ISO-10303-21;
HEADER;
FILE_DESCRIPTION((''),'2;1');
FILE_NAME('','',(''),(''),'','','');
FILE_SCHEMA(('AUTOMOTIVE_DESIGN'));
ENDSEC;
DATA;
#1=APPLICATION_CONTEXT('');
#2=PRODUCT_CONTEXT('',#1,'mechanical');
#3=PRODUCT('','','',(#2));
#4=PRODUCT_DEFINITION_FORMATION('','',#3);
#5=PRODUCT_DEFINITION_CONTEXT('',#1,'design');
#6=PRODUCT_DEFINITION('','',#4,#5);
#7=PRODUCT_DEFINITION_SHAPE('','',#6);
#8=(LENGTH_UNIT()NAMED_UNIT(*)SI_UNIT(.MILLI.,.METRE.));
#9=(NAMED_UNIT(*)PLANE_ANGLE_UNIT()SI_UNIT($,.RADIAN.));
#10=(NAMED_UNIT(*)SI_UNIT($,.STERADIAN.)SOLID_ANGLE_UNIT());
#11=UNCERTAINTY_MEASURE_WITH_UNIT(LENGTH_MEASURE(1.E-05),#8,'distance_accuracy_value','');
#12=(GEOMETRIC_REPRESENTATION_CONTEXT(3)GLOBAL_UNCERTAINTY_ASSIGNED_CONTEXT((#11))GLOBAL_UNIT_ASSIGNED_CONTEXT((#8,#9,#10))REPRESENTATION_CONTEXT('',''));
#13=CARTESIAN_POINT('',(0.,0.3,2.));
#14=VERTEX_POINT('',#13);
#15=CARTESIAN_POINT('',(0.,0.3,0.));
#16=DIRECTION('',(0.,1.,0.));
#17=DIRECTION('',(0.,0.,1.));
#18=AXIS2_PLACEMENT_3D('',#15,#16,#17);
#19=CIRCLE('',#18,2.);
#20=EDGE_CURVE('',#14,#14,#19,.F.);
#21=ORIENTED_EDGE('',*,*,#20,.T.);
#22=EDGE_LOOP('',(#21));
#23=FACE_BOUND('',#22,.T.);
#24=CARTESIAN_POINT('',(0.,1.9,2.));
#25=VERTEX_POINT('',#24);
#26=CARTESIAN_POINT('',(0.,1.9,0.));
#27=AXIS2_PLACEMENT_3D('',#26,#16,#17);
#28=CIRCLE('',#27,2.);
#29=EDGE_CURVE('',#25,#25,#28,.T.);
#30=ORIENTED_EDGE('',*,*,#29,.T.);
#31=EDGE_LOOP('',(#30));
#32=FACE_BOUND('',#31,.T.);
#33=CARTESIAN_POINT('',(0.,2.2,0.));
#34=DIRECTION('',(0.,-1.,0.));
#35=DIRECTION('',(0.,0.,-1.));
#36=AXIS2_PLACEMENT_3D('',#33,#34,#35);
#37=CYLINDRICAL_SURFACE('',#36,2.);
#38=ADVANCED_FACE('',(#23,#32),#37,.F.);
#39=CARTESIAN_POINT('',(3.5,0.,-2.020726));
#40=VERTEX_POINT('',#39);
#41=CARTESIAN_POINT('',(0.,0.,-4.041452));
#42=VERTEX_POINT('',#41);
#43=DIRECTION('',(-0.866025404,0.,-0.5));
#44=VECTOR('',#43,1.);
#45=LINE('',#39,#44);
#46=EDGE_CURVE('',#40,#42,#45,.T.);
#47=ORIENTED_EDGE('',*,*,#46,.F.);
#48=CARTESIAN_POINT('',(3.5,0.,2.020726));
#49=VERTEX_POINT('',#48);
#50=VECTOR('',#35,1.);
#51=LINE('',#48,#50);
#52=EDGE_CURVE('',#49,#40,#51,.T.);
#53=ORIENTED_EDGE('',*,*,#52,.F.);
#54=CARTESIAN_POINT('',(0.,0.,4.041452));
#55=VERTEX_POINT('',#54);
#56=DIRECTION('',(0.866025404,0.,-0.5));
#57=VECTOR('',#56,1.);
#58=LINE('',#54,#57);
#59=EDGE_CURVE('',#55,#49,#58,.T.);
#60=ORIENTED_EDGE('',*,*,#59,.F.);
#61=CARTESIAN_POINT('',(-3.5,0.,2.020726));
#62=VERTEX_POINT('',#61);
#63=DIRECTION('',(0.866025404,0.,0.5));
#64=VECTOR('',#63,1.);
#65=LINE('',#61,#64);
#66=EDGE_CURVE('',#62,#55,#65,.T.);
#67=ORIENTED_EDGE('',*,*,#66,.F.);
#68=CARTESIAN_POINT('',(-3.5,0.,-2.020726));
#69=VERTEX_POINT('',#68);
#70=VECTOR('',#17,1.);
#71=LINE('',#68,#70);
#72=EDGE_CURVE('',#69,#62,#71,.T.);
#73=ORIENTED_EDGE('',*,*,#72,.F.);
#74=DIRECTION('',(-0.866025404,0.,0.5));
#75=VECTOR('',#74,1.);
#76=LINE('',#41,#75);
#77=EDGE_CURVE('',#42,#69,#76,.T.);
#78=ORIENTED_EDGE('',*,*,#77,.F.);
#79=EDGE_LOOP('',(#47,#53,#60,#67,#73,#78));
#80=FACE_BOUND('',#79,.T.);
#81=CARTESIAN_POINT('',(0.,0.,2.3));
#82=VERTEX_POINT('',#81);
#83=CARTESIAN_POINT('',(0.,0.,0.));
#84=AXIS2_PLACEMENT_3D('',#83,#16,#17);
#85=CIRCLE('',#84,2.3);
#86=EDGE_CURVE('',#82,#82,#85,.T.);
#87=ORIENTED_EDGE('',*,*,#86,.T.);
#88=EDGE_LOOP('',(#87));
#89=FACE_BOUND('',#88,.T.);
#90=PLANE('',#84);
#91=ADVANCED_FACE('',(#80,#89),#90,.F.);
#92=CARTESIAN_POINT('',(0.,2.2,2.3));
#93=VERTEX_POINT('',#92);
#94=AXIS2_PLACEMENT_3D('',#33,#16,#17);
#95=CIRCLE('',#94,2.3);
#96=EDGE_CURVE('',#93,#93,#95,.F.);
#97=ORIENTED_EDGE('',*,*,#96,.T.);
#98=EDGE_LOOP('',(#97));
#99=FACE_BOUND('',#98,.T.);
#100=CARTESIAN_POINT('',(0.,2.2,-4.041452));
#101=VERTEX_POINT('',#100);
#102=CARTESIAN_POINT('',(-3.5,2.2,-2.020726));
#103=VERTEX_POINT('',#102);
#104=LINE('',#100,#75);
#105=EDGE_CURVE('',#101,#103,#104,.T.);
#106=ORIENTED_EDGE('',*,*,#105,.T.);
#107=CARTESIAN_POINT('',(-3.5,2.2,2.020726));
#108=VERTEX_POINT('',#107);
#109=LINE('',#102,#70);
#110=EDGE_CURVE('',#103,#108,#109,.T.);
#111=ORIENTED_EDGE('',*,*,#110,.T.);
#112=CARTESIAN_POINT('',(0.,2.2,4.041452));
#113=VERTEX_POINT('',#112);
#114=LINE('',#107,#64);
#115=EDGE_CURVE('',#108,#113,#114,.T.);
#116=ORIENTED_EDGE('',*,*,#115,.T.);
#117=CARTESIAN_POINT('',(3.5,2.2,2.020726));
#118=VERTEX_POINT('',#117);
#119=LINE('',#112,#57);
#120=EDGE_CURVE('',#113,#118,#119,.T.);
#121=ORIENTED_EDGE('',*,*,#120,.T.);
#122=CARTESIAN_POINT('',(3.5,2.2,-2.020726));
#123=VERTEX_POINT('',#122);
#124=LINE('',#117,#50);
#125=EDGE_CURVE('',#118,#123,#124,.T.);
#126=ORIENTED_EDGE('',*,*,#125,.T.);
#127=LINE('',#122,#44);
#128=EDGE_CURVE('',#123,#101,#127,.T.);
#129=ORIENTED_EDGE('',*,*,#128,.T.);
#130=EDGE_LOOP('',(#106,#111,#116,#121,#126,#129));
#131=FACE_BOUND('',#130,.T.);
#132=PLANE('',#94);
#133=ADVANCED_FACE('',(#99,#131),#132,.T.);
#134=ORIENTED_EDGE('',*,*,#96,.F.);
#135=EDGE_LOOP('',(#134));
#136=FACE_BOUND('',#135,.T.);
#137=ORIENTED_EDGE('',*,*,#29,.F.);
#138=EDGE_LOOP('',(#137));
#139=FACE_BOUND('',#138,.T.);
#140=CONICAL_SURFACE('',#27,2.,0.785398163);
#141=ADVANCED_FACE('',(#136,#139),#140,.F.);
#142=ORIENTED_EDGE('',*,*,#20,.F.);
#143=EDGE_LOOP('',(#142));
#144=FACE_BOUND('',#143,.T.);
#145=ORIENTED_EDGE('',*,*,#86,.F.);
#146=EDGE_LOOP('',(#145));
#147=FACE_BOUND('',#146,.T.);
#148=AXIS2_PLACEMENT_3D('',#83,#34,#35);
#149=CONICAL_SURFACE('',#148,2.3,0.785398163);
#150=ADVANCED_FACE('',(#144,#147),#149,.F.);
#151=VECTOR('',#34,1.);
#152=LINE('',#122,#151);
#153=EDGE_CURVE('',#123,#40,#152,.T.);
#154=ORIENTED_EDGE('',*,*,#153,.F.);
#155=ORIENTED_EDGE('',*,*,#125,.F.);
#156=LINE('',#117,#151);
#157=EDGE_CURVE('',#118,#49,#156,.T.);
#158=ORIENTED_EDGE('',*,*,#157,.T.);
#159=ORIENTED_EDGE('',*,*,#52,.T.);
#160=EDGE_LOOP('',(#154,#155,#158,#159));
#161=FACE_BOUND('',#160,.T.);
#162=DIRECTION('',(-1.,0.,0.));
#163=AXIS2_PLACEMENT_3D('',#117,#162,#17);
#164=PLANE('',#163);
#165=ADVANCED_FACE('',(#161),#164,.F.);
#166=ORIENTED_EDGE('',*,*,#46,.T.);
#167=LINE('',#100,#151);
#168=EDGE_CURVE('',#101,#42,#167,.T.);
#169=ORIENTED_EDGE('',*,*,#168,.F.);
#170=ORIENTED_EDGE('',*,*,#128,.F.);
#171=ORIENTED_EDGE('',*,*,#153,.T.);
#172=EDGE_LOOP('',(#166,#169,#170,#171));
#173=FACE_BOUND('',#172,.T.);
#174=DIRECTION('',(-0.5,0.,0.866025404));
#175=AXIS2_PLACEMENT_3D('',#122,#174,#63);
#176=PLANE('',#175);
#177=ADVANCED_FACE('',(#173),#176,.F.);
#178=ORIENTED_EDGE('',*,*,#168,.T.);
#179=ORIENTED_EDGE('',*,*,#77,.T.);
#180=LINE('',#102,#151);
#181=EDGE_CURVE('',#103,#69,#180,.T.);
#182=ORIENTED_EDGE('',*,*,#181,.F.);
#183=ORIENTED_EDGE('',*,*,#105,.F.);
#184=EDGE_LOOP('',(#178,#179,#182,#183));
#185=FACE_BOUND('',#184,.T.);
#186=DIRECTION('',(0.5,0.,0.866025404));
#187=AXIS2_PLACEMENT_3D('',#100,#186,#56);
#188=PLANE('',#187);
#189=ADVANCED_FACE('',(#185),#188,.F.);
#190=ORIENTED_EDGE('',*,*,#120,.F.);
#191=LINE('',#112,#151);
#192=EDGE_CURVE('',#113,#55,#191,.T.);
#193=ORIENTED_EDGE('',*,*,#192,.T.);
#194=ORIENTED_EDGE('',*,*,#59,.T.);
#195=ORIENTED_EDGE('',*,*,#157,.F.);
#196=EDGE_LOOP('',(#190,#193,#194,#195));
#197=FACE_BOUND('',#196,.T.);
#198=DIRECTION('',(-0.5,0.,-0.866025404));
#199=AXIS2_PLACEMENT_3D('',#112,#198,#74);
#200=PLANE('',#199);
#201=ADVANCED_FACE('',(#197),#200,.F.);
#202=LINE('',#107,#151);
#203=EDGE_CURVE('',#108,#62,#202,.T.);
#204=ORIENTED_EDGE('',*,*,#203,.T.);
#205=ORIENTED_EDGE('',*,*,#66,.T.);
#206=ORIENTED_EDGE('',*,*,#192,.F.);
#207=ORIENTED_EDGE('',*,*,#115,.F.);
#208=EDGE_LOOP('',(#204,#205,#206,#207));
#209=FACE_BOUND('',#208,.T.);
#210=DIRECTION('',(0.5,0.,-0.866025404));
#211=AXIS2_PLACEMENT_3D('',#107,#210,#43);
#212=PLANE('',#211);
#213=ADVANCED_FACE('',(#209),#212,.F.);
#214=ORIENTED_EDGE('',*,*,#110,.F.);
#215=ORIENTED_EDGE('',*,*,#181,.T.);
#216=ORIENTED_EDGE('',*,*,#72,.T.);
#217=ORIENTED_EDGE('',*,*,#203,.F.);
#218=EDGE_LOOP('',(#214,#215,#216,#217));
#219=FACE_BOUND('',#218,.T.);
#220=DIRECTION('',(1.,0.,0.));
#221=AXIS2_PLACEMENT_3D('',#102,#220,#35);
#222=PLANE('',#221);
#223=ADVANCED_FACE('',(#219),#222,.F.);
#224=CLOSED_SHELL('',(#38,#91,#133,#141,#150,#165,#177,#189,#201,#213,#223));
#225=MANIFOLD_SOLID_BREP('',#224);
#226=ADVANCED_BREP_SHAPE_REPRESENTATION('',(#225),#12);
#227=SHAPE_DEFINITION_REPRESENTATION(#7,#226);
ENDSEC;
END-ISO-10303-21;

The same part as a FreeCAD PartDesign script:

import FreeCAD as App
import Part
import Sketcher
from FreeCAD import Vector
Q = App.Units.Quantity


def edges_at(feature, points):
    """Names of the edges that pass closest to the given points."""
    edges = feature.Shape.Edges
    near = lambda p: min(range(len(edges)), key=lambda i: edges[i].distToShape(Part.Vertex(*p))[0])
    return sorted({f"Edge{near(p) + 1}" for p in points})

doc = App.newDocument("Part")
body = doc.addObject("PartDesign::Body", "Body")

# Sketch on XZ plane
sketch1 = body.newObject("Sketcher::SketchObject", "Sketch")
sketch1.AttachmentSupport = (doc.getObject("XZ_Plane"), [""])
sketch1.MapMode = "FlatFace"
sketch1.addGeometry(Part.LineSegment(Vector(-3.5, -2.020726, 0), Vector(-3.5, 2.020726, 0)), False)
sketch1.addGeometry(Part.LineSegment(Vector(-3.5, 2.020726, 0), Vector(0, 4.041452, 0)), False)
sketch1.addGeometry(Part.LineSegment(Vector(0, 4.041452, 0), Vector(3.5, 2.020726, 0)), False)
sketch1.addGeometry(Part.LineSegment(Vector(3.5, 2.020726, 0), Vector(3.5, -2.020726, 0)), False)
sketch1.addGeometry(Part.LineSegment(Vector(3.5, -2.020726, 0), Vector(0, -4.041452, 0)), False)
sketch1.addGeometry(Part.LineSegment(Vector(0, -4.041452, 0), Vector(-3.5, -2.020726, 0)), False)
sketch1.addGeometry(Part.Circle(Vector(0, 0, 0), Vector(0, 0, 1), 2), False)
sketch1.addConstraint(Sketcher.Constraint("Coincident", 0, 2, 1, 1))
sketch1.addConstraint(Sketcher.Constraint("Coincident", 1, 2, 2, 1))
sketch1.addConstraint(Sketcher.Constraint("Coincident", 2, 2, 3, 1))
sketch1.addConstraint(Sketcher.Constraint("Coincident", 3, 2, 4, 1))
sketch1.addConstraint(Sketcher.Constraint("Coincident", 4, 2, 5, 1))
sketch1.addConstraint(Sketcher.Constraint("Coincident", 5, 2, 0, 1))
sketch1.addConstraint(Sketcher.Constraint("Vertical", 0))
sketch1.addConstraint(Sketcher.Constraint("Vertical", 3))
sketch1.addConstraint(Sketcher.Constraint("Coincident", 6, 3, -1, 1))
sketch1.addConstraint(Sketcher.Constraint("Symmetric", 0, 2, 3, 2, -1, 1))
sketch1.addConstraint(Sketcher.Constraint("Symmetric", 1, 2, 4, 2, -1, 1))
sketch1.addConstraint(Sketcher.Constraint("PointOnObject", 1, 2, -2))
sketch1.addConstraint(Sketcher.Constraint("Parallel", 2, 5))
sketch1.addConstraint(Sketcher.Constraint("Horizontal", 0, 2, 2, 2))
sketch1.addConstraint(Sketcher.Constraint("Diameter", 6, 4.0))
sketch1.addConstraint(Sketcher.Constraint("Angle", 1, Q("30 deg")))
sketch1.addConstraint(Sketcher.Constraint("DistanceX", 0, 2, 2, 2, 7.0))
sketch1.addConstraint(Sketcher.Constraint("DistanceY", 0, 1, 0, 2, 4.041452))
pad1 = body.newObject("PartDesign::Pad", "Pad")
pad1.Profile = sketch1
pad1.Length = 2.2
pad1.Reversed = True
doc.recompute()

chamfer = body.newObject("PartDesign::Chamfer", "Chamfer")
chamfer.Base = (pad1, edges_at(pad1, [(-2, 0, 0), (-2, 2.2, 0)]))
chamfer.Size = 0.3

doc.recompute()
